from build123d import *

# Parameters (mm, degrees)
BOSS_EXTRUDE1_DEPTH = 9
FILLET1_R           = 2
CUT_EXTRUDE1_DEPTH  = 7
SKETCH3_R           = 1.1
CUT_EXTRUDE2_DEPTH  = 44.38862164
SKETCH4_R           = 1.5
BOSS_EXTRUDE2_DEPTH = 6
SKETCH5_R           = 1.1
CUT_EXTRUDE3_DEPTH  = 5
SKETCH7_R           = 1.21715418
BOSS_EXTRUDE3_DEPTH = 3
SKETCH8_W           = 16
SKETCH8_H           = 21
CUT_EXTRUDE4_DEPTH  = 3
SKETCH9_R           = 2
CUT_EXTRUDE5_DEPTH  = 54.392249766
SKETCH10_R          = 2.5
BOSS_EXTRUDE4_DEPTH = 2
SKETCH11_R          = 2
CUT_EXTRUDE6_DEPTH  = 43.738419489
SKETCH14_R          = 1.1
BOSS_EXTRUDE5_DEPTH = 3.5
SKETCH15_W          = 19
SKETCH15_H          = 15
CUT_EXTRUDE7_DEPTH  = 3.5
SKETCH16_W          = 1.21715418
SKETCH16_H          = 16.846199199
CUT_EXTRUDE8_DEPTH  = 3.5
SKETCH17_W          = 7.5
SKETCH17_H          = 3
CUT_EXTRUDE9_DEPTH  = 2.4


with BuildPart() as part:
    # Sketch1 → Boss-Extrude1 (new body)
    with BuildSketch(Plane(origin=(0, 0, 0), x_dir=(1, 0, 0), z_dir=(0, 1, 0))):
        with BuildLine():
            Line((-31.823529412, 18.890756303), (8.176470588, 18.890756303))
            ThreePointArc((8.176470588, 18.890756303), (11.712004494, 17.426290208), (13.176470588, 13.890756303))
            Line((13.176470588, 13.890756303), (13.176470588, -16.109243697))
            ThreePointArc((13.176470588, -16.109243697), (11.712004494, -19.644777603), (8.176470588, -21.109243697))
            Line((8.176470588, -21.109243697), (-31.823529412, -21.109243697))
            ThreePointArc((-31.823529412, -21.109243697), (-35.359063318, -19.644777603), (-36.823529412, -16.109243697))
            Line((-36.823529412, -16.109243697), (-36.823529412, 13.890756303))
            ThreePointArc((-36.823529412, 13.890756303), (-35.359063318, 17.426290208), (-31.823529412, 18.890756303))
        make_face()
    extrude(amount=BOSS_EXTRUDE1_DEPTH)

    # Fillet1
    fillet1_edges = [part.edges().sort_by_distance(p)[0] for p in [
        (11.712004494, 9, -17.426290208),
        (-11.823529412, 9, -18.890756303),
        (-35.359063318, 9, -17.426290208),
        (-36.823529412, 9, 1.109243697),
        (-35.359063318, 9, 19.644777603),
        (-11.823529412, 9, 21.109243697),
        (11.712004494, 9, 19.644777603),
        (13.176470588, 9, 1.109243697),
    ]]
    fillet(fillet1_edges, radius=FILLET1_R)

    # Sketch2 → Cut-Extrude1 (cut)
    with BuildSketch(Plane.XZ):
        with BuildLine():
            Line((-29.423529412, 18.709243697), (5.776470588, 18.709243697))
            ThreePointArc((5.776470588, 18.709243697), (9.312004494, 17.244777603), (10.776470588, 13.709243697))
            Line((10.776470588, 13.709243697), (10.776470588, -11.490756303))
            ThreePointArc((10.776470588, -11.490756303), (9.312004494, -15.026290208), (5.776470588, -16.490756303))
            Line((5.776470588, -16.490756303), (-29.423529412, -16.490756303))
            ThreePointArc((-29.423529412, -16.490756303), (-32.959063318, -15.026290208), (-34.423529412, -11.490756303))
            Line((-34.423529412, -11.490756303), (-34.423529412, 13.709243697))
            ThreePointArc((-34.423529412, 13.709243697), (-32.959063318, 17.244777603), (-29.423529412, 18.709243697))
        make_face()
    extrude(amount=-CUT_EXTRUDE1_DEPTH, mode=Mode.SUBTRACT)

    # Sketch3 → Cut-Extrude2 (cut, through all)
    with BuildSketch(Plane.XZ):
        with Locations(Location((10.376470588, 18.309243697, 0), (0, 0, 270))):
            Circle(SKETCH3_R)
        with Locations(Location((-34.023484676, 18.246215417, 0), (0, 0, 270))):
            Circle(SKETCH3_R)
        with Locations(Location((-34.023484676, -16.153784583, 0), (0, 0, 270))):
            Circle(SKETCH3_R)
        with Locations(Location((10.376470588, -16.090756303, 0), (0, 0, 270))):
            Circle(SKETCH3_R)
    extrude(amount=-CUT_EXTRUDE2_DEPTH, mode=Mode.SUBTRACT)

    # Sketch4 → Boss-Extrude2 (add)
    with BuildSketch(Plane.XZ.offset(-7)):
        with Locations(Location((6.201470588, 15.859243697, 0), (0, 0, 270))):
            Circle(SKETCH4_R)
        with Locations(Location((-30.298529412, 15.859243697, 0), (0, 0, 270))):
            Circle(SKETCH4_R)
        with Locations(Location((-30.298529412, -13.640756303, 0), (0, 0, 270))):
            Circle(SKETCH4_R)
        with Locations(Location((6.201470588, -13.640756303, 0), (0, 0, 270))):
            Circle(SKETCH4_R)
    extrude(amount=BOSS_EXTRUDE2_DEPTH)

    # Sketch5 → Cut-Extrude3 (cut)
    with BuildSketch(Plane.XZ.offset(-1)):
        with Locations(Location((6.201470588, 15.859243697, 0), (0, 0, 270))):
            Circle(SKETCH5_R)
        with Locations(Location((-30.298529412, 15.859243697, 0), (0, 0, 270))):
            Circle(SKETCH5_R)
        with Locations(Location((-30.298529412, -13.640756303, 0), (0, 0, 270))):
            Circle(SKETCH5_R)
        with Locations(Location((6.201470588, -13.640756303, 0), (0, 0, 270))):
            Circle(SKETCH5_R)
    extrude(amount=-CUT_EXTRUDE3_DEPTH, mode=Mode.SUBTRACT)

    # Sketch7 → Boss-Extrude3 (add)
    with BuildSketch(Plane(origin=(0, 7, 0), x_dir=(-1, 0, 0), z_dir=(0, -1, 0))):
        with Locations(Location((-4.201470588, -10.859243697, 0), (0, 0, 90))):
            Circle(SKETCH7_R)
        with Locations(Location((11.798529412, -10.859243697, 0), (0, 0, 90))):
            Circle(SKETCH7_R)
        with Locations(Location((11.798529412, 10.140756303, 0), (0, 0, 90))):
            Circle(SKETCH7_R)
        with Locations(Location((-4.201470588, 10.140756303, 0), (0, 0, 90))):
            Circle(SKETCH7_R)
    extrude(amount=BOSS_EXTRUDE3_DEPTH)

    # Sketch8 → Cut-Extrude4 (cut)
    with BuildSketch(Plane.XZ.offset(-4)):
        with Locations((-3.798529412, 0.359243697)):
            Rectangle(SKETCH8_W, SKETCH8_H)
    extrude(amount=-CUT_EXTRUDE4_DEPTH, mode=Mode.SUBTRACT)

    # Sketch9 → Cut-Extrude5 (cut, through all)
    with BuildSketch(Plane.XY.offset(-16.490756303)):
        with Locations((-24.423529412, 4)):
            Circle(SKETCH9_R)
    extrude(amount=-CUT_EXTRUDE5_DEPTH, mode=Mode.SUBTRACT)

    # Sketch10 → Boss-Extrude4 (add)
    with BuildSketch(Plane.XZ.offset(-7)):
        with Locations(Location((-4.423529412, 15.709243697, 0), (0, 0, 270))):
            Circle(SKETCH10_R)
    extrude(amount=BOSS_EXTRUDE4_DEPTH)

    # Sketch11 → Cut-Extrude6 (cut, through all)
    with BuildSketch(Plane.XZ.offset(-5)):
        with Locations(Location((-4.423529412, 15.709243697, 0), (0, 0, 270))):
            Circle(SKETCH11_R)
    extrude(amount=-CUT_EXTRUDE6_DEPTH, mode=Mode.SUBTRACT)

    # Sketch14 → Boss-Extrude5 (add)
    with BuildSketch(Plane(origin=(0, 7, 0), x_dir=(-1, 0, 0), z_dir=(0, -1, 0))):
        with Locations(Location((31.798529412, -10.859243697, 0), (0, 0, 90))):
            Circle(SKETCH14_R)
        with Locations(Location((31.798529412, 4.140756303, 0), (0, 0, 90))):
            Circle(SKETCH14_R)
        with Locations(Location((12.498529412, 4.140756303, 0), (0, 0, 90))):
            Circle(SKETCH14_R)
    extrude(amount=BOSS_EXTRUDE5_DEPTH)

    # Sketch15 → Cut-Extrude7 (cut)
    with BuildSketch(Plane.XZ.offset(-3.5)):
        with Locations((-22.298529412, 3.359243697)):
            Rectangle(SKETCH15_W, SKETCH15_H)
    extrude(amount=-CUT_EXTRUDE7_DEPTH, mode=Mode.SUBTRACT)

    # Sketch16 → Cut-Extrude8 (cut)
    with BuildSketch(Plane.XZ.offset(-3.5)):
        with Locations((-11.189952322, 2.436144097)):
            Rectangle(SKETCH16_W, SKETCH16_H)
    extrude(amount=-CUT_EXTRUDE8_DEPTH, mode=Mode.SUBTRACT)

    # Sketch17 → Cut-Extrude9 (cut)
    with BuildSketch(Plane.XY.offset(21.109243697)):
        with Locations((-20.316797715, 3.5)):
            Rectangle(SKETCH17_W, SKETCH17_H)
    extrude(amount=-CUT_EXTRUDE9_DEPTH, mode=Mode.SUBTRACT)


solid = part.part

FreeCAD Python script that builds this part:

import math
import FreeCAD as App
import Part
import Sketcher

V = App.Vector
Q = App.Units.Quantity


def edges_at(feature, points):
    """Names of the edges that pass closest to the given points."""
    edges = feature.Shape.Edges
    near = lambda p: min(range(len(edges)), key=lambda i: edges[i].distToShape(Part.Vertex(*p))[0])
    return sorted({f"Edge{near(p) + 1}" for p in points})


def add_polygon(sketch, points):
    """Adds a closed chain of lines whose ends are joined by coincident constraints."""
    first, n = sketch.GeometryCount, len(points)
    for a, b in zip(points, points[1:] + points[:1]):
        sketch.addGeometry(Part.LineSegment(App.Vector(*a, 0), App.Vector(*b, 0)), False)
    for i in range(n):
        sketch.addConstraint(Sketcher.Constraint("Coincident", first + i, 2, first + (i + 1) % n, 1))

doc = App.newDocument("Part")
body = doc.addObject("PartDesign::Body", "Body")

sketch1 = body.newObject("Sketcher::SketchObject", "Sketch")
sketch1.AttachmentSupport = (doc.getObject("XZ_Plane"), [""])
sketch1.MapMode = "FlatFace"
sketch1.addGeometry([
    Part.LineSegment(V(8, -19, 0), V(-32, -19, 0)),
    Part.ArcOfCircle(Part.Circle(V(-32, -14, 0), V(0, 0, 1), 5), math.radians(-180), math.radians(-90)),
    Part.LineSegment(V(-37, -14, 0), V(-37, 16, 0)),
    Part.ArcOfCircle(Part.Circle(V(-32, 16, 0), V(0, 0, 1), 5), math.radians(90), math.radians(180)),
    Part.LineSegment(V(-32, 21, 0), V(8, 21, 0)),
    Part.ArcOfCircle(Part.Circle(V(8, 16, 0), V(0, 0, 1), 5), math.radians(0), math.radians(90)),
    Part.LineSegment(V(13, 16, 0), V(13, -14, 0)),
    Part.ArcOfCircle(Part.Circle(V(8, -14, 0), V(0, 0, 1), 5), math.radians(-90), math.radians(0)),
], False)
sketch1.addConstraint([
    Sketcher.Constraint("Tangent", 0, 2, 1, 2),
    Sketcher.Constraint("Tangent", 1, 1, 2, 1),
    Sketcher.Constraint("Tangent", 2, 2, 3, 2),
    Sketcher.Constraint("Tangent", 3, 1, 4, 1),
    Sketcher.Constraint("Tangent", 4, 2, 5, 2),
    Sketcher.Constraint("Tangent", 5, 1, 6, 1),
    Sketcher.Constraint("Tangent", 6, 2, 7, 2),
    Sketcher.Constraint("Tangent", 7, 1, 0, 1),
    Sketcher.Constraint("Horizontal", 0),
    Sketcher.Constraint("Vertical", 2),
    Sketcher.Constraint("Horizontal", 4),
    Sketcher.Constraint("Vertical", 6),
    Sketcher.Constraint("Equal", 1, 3),
    Sketcher.Constraint("Equal", 3, 5),
    Sketcher.Constraint("Equal", 5, 7),
    Sketcher.Constraint("Radius", 1, Q("5 mm")),
    Sketcher.Constraint("DistanceX", 0, 2, 0, 1, Q("40 mm")),
    Sketcher.Constraint("DistanceY", 2, 1, 2, 2, Q("30 mm")),
    Sketcher.Constraint("DistanceX", 1, 3, -1, 1, Q("31.823529 mm")),
    Sketcher.Constraint("DistanceY", 1, 3, -1, 1, Q("13.890756 mm")),
])
pad1 = body.newObject("PartDesign::Pad", "Pad")
pad1.Profile = sketch1
pad1.Length = 9
pad1.Reversed = True
doc.recompute()

fillet = body.newObject("PartDesign::Fillet", "Fillet")
fillet.Base = (pad1, edges_at(pad1, [
    (11.712, 9, -17.426),
    (-11.824, 9, -18.891),
    (-35.359, 9, -17.426),
    (-36.824, 9, 1.109),
    (-35.359, 9, 19.645),
    (-11.824, 9, 21.109),
    (11.712, 9, 19.645),
    (13.176, 9, 1.109),
]))
fillet.Radius = 2

sketch2 = body.newObject("Sketcher::SketchObject", "Sketch001")
sketch2.AttachmentSupport = (doc.getObject("XZ_Plane"), [""])
sketch2.MapMode = "FlatFace"
sketch2.addGeometry([
    Part.LineSegment(V(6, 19, 0), V(-29, 19, 0)),
    Part.ArcOfCircle(Part.Circle(V(-29, 14, 0), V(0, 0, 1), 5), math.radians(90), math.radians(180)),
    Part.LineSegment(V(-34, 14, 0), V(-34, -11, 0)),
    Part.ArcOfCircle(Part.Circle(V(-29, -11, 0), V(0, 0, 1), 5), math.radians(-180), math.radians(-90)),
    Part.LineSegment(V(-29, -16, 0), V(6, -16, 0)),
    Part.ArcOfCircle(Part.Circle(V(6, -11, 0), V(0, 0, 1), 5), math.radians(-90), math.radians(0)),
    Part.LineSegment(V(11, -11, 0), V(11, 14, 0)),
    Part.ArcOfCircle(Part.Circle(V(6, 14, 0), V(0, 0, 1), 5), math.radians(0), math.radians(90)),
], False)
sketch2.addConstraint([
    Sketcher.Constraint("Tangent", 0, 2, 1, 1),
    Sketcher.Constraint("Tangent", 1, 2, 2, 1),
    Sketcher.Constraint("Tangent", 2, 2, 3, 1),
    Sketcher.Constraint("Tangent", 3, 2, 4, 1),
    Sketcher.Constraint("Tangent", 4, 2, 5, 1),
    Sketcher.Constraint("Tangent", 5, 2, 6, 1),
    Sketcher.Constraint("Tangent", 6, 2, 7, 1),
    Sketcher.Constraint("Tangent", 7, 2, 0, 1),
    Sketcher.Constraint("Horizontal", 0),
    Sketcher.Constraint("Vertical", 2),
    Sketcher.Constraint("Horizontal", 4),
    Sketcher.Constraint("Vertical", 6),
    Sketcher.Constraint("Equal", 1, 3),
    Sketcher.Constraint("Equal", 3, 5),
    Sketcher.Constraint("Equal", 5, 7),
    Sketcher.Constraint("Radius", 1, Q("5 mm")),
    Sketcher.Constraint("DistanceX", 0, 2, 0, 1, Q("35.2 mm")),
    Sketcher.Constraint("DistanceY", 2, 2, 2, 1, Q("25.2 mm")),
    Sketcher.Constraint("DistanceX", 1, 3, -1, 1, Q("29.423529 mm")),
    Sketcher.Constraint("DistanceY", -1, 1, 1, 3, Q("13.709244 mm")),
])
pocket1 = body.newObject("PartDesign::Pocket", "Pocket")
pocket1.Profile = sketch2
pocket1.Length = 7

sketch3 = body.newObject("Sketcher::SketchObject", "Sketch002")
sketch3.AttachmentSupport = (doc.getObject("XZ_Plane"), [""])
sketch3.MapMode = "FlatFace"
sketch3.addGeometry([
    Part.Circle(V(10.4, 18.3, 0), V(0, 0, 1), 1.1),
    Part.Circle(V(-34, 18.2, 0), V(0, 0, 1), 1.1),
    Part.Circle(V(-34, -16.2, 0), V(0, 0, 1), 1.1),
    Part.Circle(V(10.4, -16.1, 0), V(0, 0, 1), 1.1),
], False)
sketch3.addConstraint([
    Sketcher.Constraint("Equal", 0, 1),
    Sketcher.Constraint("Equal", 1, 2),
    Sketcher.Constraint("Equal", 2, 3),
    Sketcher.Constraint("Vertical", 1, 3, 2, 3),
    Sketcher.Constraint("Vertical", 0, 3, 3, 3),
    Sketcher.Constraint("Diameter", 0, Q("2.2 mm")),
    Sketcher.Constraint("DistanceY", 2, 3, 1, 3, Q("34.4 mm")),
    Sketcher.Constraint("DistanceY", 3, 3, 0, 3, Q("34.4 mm")),
    Sketcher.Constraint("DistanceX", -1, 1, 0, 3, Q("10.376471 mm")),
    Sketcher.Constraint("DistanceY", 1, 3, 0, 3, Q("0.063028 mm")),
    Sketcher.Constraint("DistanceY", -1, 1, 0, 3, Q("18.309244 mm")),
    Sketcher.Constraint("DistanceX", 1, 3, -1, 1, Q("34.023485 mm")),
])
pocket2 = body.newObject("PartDesign::Pocket", "Pocket001")
pocket2.Profile = sketch3
pocket2.Type = "ThroughAll"

sketch4 = body.newObject("Sketcher::SketchObject", "Sketch003")
sketch4.AttachmentSupport = (doc.getObject("XZ_Plane"), [""])
sketch4.MapMode = "FlatFace"
sketch4.AttachmentOffset = App.Placement(V(0, 0, -7), App.Rotation())
sketch4.addGeometry([
    Part.Circle(V(6.2, 15.9, 0), V(0, 0, 1), 1.5),
    Part.Circle(V(-30.3, 15.9, 0), V(0, 0, 1), 1.5),
    Part.Circle(V(-30.3, -13.6, 0), V(0, 0, 1), 1.5),
    Part.Circle(V(6.2, -13.6, 0), V(0, 0, 1), 1.5),
], False)
sketch4.addConstraint([
    Sketcher.Constraint("Equal", 0, 1),
    Sketcher.Constraint("Equal", 1, 2),
    Sketcher.Constraint("Equal", 2, 3),
    Sketcher.Constraint("Horizontal", 0, 3, 1, 3),
    Sketcher.Constraint("Horizontal", 2, 3, 3, 3),
    Sketcher.Constraint("Vertical", 1, 3, 2, 3),
    Sketcher.Constraint("Vertical", 0, 3, 3, 3),
    Sketcher.Constraint("Diameter", 0, Q("3 mm")),
    Sketcher.Constraint("DistanceX", 1, 3, 0, 3, Q("36.5 mm")),
    Sketcher.Constraint("DistanceY", 2, 3, 1, 3, Q("29.5 mm")),
    Sketcher.Constraint("DistanceX", -1, 1, 0, 3, Q("6.201471 mm")),
    Sketcher.Constraint("DistanceY", -1, 1, 0, 3, Q("15.859244 mm")),
])
pad2 = body.newObject("PartDesign::Pad", "Pad001")
pad2.Profile = sketch4
pad2.Length = 6

sketch5 = body.newObject("Sketcher::SketchObject", "Sketch004")
sketch5.AttachmentSupport = (doc.getObject("XZ_Plane"), [""])
sketch5.MapMode = "FlatFace"
sketch5.AttachmentOffset = App.Placement(V(0, 0, -1), App.Rotation())
sketch5.addGeometry([
    Part.Circle(V(6.2, 15.9, 0), V(0, 0, 1), 1.1),
    Part.Circle(V(-30.3, 15.9, 0), V(0, 0, 1), 1.1),
    Part.Circle(V(-30.3, -13.6, 0), V(0, 0, 1), 1.1),
    Part.Circle(V(6.2, -13.6, 0), V(0, 0, 1), 1.1),
], False)
sketch5.addConstraint([
    Sketcher.Constraint("Equal", 0, 1),
    Sketcher.Constraint("Equal", 1, 2),
    Sketcher.Constraint("Equal", 2, 3),
    Sketcher.Constraint("Horizontal", 0, 3, 1, 3),
    Sketcher.Constraint("Horizontal", 2, 3, 3, 3),
    Sketcher.Constraint("Vertical", 1, 3, 2, 3),
    Sketcher.Constraint("Vertical", 0, 3, 3, 3),
    Sketcher.Constraint("Diameter", 0, Q("2.2 mm")),
    Sketcher.Constraint("DistanceX", 1, 3, 0, 3, Q("36.5 mm")),
    Sketcher.Constraint("DistanceY", 2, 3, 1, 3, Q("29.5 mm")),
    Sketcher.Constraint("DistanceX", -1, 1, 0, 3, Q("6.201471 mm")),
    Sketcher.Constraint("DistanceY", -1, 1, 0, 3, Q("15.859244 mm")),
])
pocket3 = body.newObject("PartDesign::Pocket", "Pocket002")
pocket3.Profile = sketch5
pocket3.Length = 5

sketch6 = body.newObject("Sketcher::SketchObject", "Sketch005")
sketch6.AttachmentSupport = (doc.getObject("XZ_Plane"), [""])
sketch6.MapMode = "FlatFace"
sketch6.AttachmentOffset = App.Placement(V(0, 0, -7), App.Rotation())
sketch6.addGeometry([
    Part.Circle(V(4.2, 10.9, 0), V(0, 0, 1), 1.2),
    Part.Circle(V(-11.8, 10.9, 0), V(0, 0, 1), 1.2),
    Part.Circle(V(-11.8, -10.1, 0), V(0, 0, 1), 1.2),
    Part.Circle(V(4.2, -10.1, 0), V(0, 0, 1), 1.2),
], False)
sketch6.addConstraint([
    Sketcher.Constraint("Equal", 0, 1),
    Sketcher.Constraint("Equal", 1, 2),
    Sketcher.Constraint("Equal", 2, 3),
    Sketcher.Constraint("Horizontal", 0, 3, 1, 3),
    Sketcher.Constraint("Horizontal", 2, 3, 3, 3),
    Sketcher.Constraint("Vertical", 1, 3, 2, 3),
    Sketcher.Constraint("Vertical", 0, 3, 3, 3),
    Sketcher.Constraint("DistanceX", 1, 3, 0, 3, Q("16 mm")),
    Sketcher.Constraint("DistanceY", 2, 3, 1, 3, Q("21 mm")),
    Sketcher.Constraint("Diameter", 0, Q("2.434308 mm")),
    Sketcher.Constraint("DistanceX", -1, 1, 0, 3, Q("4.201471 mm")),
    Sketcher.Constraint("DistanceY", -1, 1, 0, 3, Q("10.859244 mm")),
])
pad3 = body.newObject("PartDesign::Pad", "Pad002")
pad3.Profile = sketch6
pad3.Length = 3

sketch7 = body.newObject("Sketcher::SketchObject", "Sketch006")
sketch7.AttachmentSupport = (doc.getObject("XZ_Plane"), [""])
sketch7.MapMode = "FlatFace"
sketch7.AttachmentOffset = App.Placement(V(0, 0, -4), App.Rotation())
add_polygon(sketch7, [(-12, 11), (-12, -10), (4, -10), (4, 11)])
sketch7.addConstraint([
    Sketcher.Constraint("Vertical", 0),
    Sketcher.Constraint("Horizontal", 1),
    Sketcher.Constraint("Vertical", 2),
    Sketcher.Constraint("Horizontal", 3),
    Sketcher.Constraint("DistanceX", 1, 1, 1, 2, Q("16 mm")),
    Sketcher.Constraint("DistanceY", 0, 2, 0, 1, Q("21 mm")),
    Sketcher.Constraint("DistanceX", 0, 2, -1, 1, Q("11.798529 mm")),
    Sketcher.Constraint("DistanceY", 0, 2, -1, 1, Q("10.140756 mm")),
])
pocket4 = body.newObject("PartDesign::Pocket", "Pocket003")
pocket4.Profile = sketch7
pocket4.Length = 3

sketch8 = body.newObject("Sketcher::SketchObject", "Sketch007")
sketch8.AttachmentSupport = (doc.getObject("XY_Plane"), [""])
sketch8.MapMode = "FlatFace"
sketch8.AttachmentOffset = App.Placement(V(0, 0, -16.490756), App.Rotation())
sketch8.addGeometry(Part.Circle(V(-24.4, 4, 0), V(0, 0, 1), 2), False)
sketch8.addConstraint([
    Sketcher.Constraint("Diameter", 0, Q("4 mm")),
    Sketcher.Constraint("DistanceY", -1, 1, 0, 3, Q("4 mm")),
    Sketcher.Constraint("DistanceX", 0, 3, -1, 1, Q("24.423529 mm")),
])
pocket5 = body.newObject("PartDesign::Pocket", "Pocket004")
pocket5.Profile = sketch8
pocket5.Type = "ThroughAll"

sketch9 = body.newObject("Sketcher::SketchObject", "Sketch008")
sketch9.AttachmentSupport = (doc.getObject("XZ_Plane"), [""])
sketch9.MapMode = "FlatFace"
sketch9.AttachmentOffset = App.Placement(V(0, 0, -7), App.Rotation())
sketch9.addGeometry(Part.Circle(V(-4.4, 15.7, 0), V(0, 0, 1), 2.5), False)
sketch9.addConstraint([
    Sketcher.Constraint("Diameter", 0, Q("5 mm")),
    Sketcher.Constraint("DistanceX", 0, 3, -1, 1, Q("4.423529 mm")),
    Sketcher.Constraint("DistanceY", -1, 1, 0, 3, Q("15.709244 mm")),
])
pad4 = body.newObject("PartDesign::Pad", "Pad003")
pad4.Profile = sketch9
pad4.Length = 2

sketch10 = body.newObject("Sketcher::SketchObject", "Sketch009")
sketch10.AttachmentSupport = (doc.getObject("XZ_Plane"), [""])
sketch10.MapMode = "FlatFace"
sketch10.AttachmentOffset = App.Placement(V(0, 0, -5), App.Rotation())
sketch10.addGeometry(Part.Circle(V(-4.4, 15.7, 0), V(0, 0, 1), 2), False)
sketch10.addConstraint([
    Sketcher.Constraint("Diameter", 0, Q("4 mm")),
    Sketcher.Constraint("DistanceX", 0, 3, -1, 1, Q("4.423529 mm")),
    Sketcher.Constraint("DistanceY", -1, 1, 0, 3, Q("15.709244 mm")),
])
pocket6 = body.newObject("PartDesign::Pocket", "Pocket005")
pocket6.Profile = sketch10
pocket6.Type = "ThroughAll"

sketch11 = body.newObject("Sketcher::SketchObject", "Sketch010")
sketch11.AttachmentSupport = (doc.getObject("XZ_Plane"), [""])
sketch11.MapMode = "FlatFace"
sketch11.AttachmentOffset = App.Placement(V(0, 0, -7), App.Rotation())
sketch11.addGeometry([
    Part.Circle(V(-31.8, 10.9, 0), V(0, 0, 1), 1.1),
    Part.Circle(V(-31.8, -4.1, 0), V(0, 0, 1), 1.1),
    Part.Circle(V(-12.5, -4.1, 0), V(0, 0, 1), 1.1),
], False)
sketch11.addConstraint([
    Sketcher.Constraint("Equal", 0, 1),
    Sketcher.Constraint("Equal", 1, 2),
    Sketcher.Constraint("Horizontal", 1, 3, 2, 3),
    Sketcher.Constraint("Vertical", 0, 3, 1, 3),
    Sketcher.Constraint("Diameter", 0, Q("2.2 mm")),
    Sketcher.Constraint("DistanceY", 1, 3, 0, 3, Q("15 mm")),
    Sketcher.Constraint("DistanceX", 1, 3, 2, 3, Q("19.3 mm")),
    Sketcher.Constraint("DistanceX", 0, 3, -1, 1, Q("31.798529 mm")),
    Sketcher.Constraint("DistanceY", -1, 1, 0, 3, Q("10.859244 mm")),
])
pad5 = body.newObject("PartDesign::Pad", "Pad004")
pad5.Profile = sketch11
pad5.Length = 3.5

sketch12 = body.newObject("Sketcher::SketchObject", "Sketch011")
sketch12.AttachmentSupport = (doc.getObject("XZ_Plane"), [""])
sketch12.MapMode = "FlatFace"
sketch12.AttachmentOffset = App.Placement(V(0, 0, -3.5), App.Rotation())
add_polygon(sketch12, [(-32, 11), (-32, -4), (-13, -4), (-13, 11)])
sketch12.addConstraint([
    Sketcher.Constraint("Vertical", 0),
    Sketcher.Constraint("Horizontal", 1),
    Sketcher.Constraint("Vertical", 2),
    Sketcher.Constraint("Horizontal", 3),
    Sketcher.Constraint("DistanceX", 1, 1, 1, 2, Q("19 mm")),
    Sketcher.Constraint("DistanceY", 0, 2, 0, 1, Q("15 mm")),
    Sketcher.Constraint("DistanceX", 0, 2, -1, 1, Q("31.798529 mm")),
    Sketcher.Constraint("DistanceY", 0, 2, -1, 1, Q("4.140756 mm")),
])
pocket7 = body.newObject("PartDesign::Pocket", "Pocket006")
pocket7.Profile = sketch12
pocket7.Length = 3.5

sketch13 = body.newObject("Sketcher::SketchObject", "Sketch012")
sketch13.AttachmentSupport = (doc.getObject("XZ_Plane"), [""])
sketch13.MapMode = "FlatFace"
sketch13.AttachmentOffset = App.Placement(V(0, 0, -3.5), App.Rotation())
add_polygon(sketch13, [(-11.8, 10.9), (-11.8, -6), (-10.6, -6), (-10.6, 10.9)])
sketch13.addConstraint([
    Sketcher.Constraint("Vertical", 0),
    Sketcher.Constraint("Horizontal", 1),
    Sketcher.Constraint("Vertical", 2),
    Sketcher.Constraint("Horizontal", 3),
    Sketcher.Constraint("DistanceY", 0, 2, 0, 1, Q("16.846199 mm")),
    Sketcher.Constraint("DistanceX", 1, 1, 1, 2, Q("1.217154 mm")),
    Sketcher.Constraint("DistanceX", 0, 2, -1, 1, Q("11.798529 mm")),
    Sketcher.Constraint("DistanceY", 0, 2, -1, 1, Q("5.986956 mm")),
])
pocket8 = body.newObject("PartDesign::Pocket", "Pocket007")
pocket8.Profile = sketch13
pocket8.Length = 3.5

sketch14 = body.newObject("Sketcher::SketchObject", "Sketch013")
sketch14.AttachmentSupport = (doc.getObject("XY_Plane"), [""])
sketch14.MapMode = "FlatFace"
sketch14.AttachmentOffset = App.Placement(V(0, 0, 21.109244), App.Rotation())
add_polygon(sketch14, [(-24.1, 5), (-24.1, 2), (-16.6, 2), (-16.6, 5)])
sketch14.addConstraint([
    Sketcher.Constraint("Vertical", 0),
    Sketcher.Constraint("Horizontal", 1),
    Sketcher.Constraint("Vertical", 2),
    Sketcher.Constraint("Horizontal", 3),
    Sketcher.Constraint("DistanceY", 0, 2, 0, 1, Q("3 mm")),
    Sketcher.Constraint("DistanceX", 1, 1, 1, 2, Q("7.5 mm")),
    Sketcher.Constraint("DistanceY", -1, 1, 0, 2, Q("2 mm")),
    Sketcher.Constraint("DistanceX", 0, 2, -1, 1, Q("24.066798 mm")),
])
pocket9 = body.newObject("PartDesign::Pocket", "Pocket008")
pocket9.Profile = sketch14
pocket9.Length = 2.4

doc.recompute()
